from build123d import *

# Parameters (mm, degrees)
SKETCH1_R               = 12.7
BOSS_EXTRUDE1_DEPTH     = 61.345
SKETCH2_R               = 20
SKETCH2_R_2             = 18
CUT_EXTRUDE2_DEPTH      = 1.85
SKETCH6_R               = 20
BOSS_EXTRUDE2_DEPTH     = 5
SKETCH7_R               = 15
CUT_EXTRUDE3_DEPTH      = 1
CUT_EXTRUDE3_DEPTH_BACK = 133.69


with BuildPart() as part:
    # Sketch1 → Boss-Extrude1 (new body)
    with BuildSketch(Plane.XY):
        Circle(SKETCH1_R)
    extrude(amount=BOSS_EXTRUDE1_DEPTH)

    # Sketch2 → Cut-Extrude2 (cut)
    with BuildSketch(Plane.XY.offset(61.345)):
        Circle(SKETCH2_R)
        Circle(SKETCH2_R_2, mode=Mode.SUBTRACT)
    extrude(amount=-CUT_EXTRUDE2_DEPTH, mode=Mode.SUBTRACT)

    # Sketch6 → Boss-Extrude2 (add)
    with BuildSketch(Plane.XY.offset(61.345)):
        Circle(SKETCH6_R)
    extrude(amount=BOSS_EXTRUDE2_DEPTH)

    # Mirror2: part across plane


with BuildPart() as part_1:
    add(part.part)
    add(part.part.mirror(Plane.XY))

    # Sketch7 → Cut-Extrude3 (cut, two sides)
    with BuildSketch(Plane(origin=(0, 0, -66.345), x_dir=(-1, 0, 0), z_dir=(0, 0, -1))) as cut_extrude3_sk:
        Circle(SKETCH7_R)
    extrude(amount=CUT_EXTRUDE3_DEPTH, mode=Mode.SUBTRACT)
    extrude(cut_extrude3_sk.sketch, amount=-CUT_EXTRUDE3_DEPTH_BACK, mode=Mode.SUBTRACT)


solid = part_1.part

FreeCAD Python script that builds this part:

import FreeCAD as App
import Part
import Sketcher

V = App.Vector
Q = App.Units.Quantity

doc = App.newDocument("Part")
body = doc.addObject("PartDesign::Body", "Body")

# Sketch on XY plane
sketch1 = body.newObject("Sketcher::SketchObject", "Sketch")
sketch1.AttachmentSupport = (doc.getObject("XY_Plane"), [""])
sketch1.MapMode = "FlatFace"
sketch1.addGeometry(Part.Circle(V(0, 0, 0), V(0, 0, 1), 12.7), False)
sketch1.addConstraint(Sketcher.Constraint("Coincident", 0, 3, -1, 1))
sketch1.addConstraint(Sketcher.Constraint("Diameter", 0, Q("25.4 mm")))
pad1 = body.newObject("PartDesign::Pad", "Pad")
pad1.Profile = sketch1
pad1.Length = 61.345

# Sketch on XY plane
sketch2 = body.newObject("Sketcher::SketchObject", "Sketch001")
sketch2.AttachmentSupport = (doc.getObject("XY_Plane"), [""])
sketch2.MapMode = "FlatFace"
sketch2.AttachmentOffset = App.Placement(V(0, 0, 61.345), App.Rotation())
sketch2.addGeometry(Part.Circle(V(0, 0, 0), V(0, 0, 1), 20), False)
sketch2.addGeometry(Part.Circle(V(0, 0, 0), V(0, 0, 1), 18), False)
sketch2.addConstraint(Sketcher.Constraint("Coincident", 0, 3, -1, 1))
sketch2.addConstraint(Sketcher.Constraint("Coincident", 1, 3, -1, 1))
sketch2.addConstraint(Sketcher.Constraint("Diameter", 0, Q("40 mm")))
sketch2.addConstraint(Sketcher.Constraint("Diameter", 1, Q("36 mm")))
pocket1 = body.newObject("PartDesign::Pocket", "Pocket")
pocket1.Profile = sketch2
pocket1.Length = 1.85

# Sketch on XY plane
sketch3 = body.newObject("Sketcher::SketchObject", "Sketch002")
sketch3.AttachmentSupport = (doc.getObject("XY_Plane"), [""])
sketch3.MapMode = "FlatFace"
sketch3.AttachmentOffset = App.Placement(V(0, 0, 61.345), App.Rotation())
sketch3.addGeometry(Part.Circle(V(0, 0, 0), V(0, 0, 1), 20), False)
sketch3.addConstraint(Sketcher.Constraint("Coincident", 0, 3, -1, 1))
sketch3.addConstraint(Sketcher.Constraint("Diameter", 0, Q("40 mm")))
pad2 = body.newObject("PartDesign::Pad", "Pad001")
pad2.Profile = sketch3
pad2.Length = 5
body2 = doc.addObject("PartDesign::Body", "Body001")
body2.AllowCompound = True
doc.recompute()

body2.BaseFeature = body
doc.recompute()

mirroring = doc.addObject("Part::Mirroring", "Mirroring")
mirroring.Source = body
mirroring.Base = V(0, 0, 0)
mirroring.Normal = V(0, 0, 1)
body3 = doc.addObject("PartDesign::Body", "Body002")
body3.BaseFeature = mirroring
boolean = body2.newObject("PartDesign::Boolean", "Boolean")
boolean.Type = "Fuse"
boolean.addObjects([body3])
doc.recompute()

# Sketch on XY plane
sketch4 = body2.newObject("Sketcher::SketchObject", "Sketch003")
sketch4.AttachmentSupport = (doc.getObject("XY_Plane001"), [""])
sketch4.MapMode = "FlatFace"
sketch4.AttachmentOffset = App.Placement(V(0, 0, -66.345), App.Rotation())
sketch4.addGeometry(Part.Circle(V(0, 0, 0), V(0, 0, 1), 15), False)
sketch4.addConstraint(Sketcher.Constraint("Coincident", 0, 3, -1, 1))
sketch4.addConstraint(Sketcher.Constraint("Diameter", 0, Q("30 mm")))
pocket2 = body2.newObject("PartDesign::Pocket", "Pocket001")
pocket2.Profile = sketch4
pocket2.Type = "ThroughAll"
pocket2.Midplane = True
mirroring.Visibility = False

doc.recompute()
